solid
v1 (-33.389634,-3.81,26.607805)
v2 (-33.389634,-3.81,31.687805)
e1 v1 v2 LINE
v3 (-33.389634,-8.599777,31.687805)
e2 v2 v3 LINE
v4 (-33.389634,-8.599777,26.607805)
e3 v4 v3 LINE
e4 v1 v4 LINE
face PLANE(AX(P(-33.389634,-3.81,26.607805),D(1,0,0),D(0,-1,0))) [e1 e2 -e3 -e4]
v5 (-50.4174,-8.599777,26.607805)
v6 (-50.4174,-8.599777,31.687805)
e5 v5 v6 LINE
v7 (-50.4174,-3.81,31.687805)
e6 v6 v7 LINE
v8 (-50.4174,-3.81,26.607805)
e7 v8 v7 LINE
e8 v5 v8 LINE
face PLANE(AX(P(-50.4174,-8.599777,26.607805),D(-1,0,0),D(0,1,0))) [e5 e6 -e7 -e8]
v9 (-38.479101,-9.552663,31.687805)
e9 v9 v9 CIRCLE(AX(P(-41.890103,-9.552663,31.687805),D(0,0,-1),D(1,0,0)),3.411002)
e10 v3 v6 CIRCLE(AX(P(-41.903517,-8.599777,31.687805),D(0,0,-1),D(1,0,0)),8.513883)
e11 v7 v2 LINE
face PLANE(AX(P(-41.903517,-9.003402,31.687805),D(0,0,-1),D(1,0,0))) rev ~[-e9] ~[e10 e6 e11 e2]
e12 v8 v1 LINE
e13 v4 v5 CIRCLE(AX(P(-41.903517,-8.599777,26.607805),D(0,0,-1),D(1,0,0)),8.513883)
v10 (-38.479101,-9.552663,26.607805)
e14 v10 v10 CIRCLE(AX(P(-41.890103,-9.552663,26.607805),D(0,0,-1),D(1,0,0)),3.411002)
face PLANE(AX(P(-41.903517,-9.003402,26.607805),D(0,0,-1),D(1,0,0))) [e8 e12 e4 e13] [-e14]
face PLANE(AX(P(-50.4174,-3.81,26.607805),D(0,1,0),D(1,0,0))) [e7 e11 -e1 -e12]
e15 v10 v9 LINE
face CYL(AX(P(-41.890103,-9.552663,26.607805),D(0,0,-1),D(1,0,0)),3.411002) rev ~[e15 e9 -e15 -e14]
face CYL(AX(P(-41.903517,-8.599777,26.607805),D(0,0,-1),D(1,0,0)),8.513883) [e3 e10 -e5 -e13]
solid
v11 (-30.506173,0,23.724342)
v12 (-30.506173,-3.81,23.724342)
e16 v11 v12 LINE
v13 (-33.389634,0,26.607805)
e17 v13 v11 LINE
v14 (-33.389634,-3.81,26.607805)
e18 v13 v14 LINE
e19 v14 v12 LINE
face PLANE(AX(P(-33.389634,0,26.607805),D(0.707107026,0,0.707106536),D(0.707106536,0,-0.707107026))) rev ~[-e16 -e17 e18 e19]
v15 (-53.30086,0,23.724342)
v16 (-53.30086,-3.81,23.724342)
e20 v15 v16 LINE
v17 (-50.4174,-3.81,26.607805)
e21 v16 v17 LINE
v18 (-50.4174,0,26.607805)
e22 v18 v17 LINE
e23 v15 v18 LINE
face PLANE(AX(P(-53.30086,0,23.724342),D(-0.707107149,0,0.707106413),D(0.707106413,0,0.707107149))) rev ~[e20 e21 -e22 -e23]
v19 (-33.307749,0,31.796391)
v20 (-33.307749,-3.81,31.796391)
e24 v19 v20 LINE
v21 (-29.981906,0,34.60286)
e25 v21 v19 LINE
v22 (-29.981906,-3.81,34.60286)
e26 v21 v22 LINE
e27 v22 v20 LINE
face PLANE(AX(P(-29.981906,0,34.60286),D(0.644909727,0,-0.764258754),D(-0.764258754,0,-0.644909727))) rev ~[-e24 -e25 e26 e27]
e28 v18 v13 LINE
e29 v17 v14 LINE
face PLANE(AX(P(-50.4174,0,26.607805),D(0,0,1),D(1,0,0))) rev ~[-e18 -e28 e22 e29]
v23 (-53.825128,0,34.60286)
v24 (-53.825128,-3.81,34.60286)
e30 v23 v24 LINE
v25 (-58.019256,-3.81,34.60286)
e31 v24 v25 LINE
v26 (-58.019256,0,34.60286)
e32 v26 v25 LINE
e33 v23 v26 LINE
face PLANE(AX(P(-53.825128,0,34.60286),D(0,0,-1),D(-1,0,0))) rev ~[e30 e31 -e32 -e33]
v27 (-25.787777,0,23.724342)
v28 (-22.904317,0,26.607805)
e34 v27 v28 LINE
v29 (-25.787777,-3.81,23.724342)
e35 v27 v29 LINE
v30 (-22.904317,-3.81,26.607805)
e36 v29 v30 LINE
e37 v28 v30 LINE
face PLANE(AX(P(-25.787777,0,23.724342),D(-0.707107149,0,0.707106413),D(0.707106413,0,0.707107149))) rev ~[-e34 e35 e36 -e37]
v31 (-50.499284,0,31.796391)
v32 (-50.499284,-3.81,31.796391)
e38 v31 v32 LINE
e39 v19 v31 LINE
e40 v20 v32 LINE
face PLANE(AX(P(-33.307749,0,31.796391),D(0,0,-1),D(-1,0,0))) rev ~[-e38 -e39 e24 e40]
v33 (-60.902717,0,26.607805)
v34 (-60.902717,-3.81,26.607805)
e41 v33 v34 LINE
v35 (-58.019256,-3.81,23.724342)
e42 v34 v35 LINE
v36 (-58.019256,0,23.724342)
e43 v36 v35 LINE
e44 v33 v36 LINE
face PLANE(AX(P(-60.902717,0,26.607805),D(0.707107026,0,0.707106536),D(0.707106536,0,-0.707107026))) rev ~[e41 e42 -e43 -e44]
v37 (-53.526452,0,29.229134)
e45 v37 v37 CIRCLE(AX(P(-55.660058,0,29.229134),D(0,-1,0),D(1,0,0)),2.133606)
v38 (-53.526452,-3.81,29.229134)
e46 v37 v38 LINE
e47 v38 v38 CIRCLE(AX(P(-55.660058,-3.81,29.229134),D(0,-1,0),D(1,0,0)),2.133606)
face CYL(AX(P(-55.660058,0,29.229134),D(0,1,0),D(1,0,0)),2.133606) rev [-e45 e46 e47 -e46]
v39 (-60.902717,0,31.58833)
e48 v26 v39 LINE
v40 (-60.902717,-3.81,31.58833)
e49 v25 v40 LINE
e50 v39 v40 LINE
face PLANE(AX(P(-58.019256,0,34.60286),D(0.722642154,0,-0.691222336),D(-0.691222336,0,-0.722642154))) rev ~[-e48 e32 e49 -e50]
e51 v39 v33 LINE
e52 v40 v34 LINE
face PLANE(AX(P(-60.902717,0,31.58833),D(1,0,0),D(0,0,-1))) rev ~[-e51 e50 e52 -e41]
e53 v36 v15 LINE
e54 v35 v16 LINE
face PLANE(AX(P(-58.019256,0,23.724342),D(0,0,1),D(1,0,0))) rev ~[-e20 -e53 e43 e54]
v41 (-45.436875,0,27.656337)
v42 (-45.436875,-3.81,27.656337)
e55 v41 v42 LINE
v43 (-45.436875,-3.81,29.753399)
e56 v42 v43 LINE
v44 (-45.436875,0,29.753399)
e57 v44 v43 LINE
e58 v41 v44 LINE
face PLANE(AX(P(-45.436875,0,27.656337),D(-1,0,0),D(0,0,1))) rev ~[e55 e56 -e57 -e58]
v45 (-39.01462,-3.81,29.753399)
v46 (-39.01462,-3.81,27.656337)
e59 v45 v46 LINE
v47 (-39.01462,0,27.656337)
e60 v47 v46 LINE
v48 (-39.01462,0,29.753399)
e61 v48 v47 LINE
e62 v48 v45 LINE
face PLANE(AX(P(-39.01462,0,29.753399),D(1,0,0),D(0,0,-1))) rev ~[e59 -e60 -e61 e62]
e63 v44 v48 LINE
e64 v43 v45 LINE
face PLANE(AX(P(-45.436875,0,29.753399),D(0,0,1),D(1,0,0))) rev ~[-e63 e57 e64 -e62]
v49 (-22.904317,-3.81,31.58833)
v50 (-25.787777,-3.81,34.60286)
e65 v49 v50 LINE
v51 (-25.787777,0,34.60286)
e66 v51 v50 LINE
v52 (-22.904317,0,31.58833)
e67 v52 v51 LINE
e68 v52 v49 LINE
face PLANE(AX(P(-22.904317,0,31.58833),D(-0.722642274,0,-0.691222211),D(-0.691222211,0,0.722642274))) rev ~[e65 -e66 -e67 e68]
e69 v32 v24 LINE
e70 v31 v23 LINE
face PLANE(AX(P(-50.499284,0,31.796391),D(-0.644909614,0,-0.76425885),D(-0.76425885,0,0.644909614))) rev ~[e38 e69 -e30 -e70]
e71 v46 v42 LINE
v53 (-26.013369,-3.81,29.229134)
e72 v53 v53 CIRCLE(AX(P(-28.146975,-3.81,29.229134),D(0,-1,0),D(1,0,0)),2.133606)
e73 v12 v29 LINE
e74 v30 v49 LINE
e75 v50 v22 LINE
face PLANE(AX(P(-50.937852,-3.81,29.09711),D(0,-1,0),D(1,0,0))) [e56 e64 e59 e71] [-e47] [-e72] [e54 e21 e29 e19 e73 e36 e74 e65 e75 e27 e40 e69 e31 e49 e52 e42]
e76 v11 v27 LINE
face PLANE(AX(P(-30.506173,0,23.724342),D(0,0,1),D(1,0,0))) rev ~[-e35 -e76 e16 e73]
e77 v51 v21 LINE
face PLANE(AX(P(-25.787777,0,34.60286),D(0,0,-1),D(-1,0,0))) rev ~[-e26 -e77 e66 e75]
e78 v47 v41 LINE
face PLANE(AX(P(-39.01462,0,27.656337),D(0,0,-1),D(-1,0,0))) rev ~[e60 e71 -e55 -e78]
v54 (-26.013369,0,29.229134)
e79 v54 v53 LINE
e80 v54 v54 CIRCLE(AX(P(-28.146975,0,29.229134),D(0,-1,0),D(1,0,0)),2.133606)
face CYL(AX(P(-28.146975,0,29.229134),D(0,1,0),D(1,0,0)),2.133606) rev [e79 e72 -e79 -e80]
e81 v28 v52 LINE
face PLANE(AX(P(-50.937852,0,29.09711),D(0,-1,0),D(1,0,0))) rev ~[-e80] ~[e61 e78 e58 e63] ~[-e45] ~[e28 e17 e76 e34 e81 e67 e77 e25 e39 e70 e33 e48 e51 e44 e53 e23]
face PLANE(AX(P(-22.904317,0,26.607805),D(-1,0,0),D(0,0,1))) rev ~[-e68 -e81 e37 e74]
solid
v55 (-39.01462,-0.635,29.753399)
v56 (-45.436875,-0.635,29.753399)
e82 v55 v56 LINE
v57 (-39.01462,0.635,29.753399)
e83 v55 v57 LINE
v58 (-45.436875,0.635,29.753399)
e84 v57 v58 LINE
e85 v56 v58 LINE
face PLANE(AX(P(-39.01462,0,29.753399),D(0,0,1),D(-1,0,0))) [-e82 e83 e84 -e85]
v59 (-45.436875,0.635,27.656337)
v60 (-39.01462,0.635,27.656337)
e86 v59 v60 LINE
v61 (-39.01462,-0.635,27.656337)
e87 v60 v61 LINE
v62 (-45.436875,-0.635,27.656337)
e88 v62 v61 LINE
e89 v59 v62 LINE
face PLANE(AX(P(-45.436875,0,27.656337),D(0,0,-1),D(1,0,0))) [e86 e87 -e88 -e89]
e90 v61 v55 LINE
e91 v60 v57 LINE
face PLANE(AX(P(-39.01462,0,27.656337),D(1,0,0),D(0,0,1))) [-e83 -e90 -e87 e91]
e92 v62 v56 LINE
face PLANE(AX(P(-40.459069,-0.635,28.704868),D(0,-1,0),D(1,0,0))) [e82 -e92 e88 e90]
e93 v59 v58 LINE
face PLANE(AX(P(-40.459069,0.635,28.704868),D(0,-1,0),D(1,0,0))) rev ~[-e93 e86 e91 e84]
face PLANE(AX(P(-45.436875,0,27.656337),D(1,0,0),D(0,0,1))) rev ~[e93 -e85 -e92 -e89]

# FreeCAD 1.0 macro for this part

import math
import FreeCAD as App
import Part
import Sketcher
from FreeCAD import Vector
Q = App.Units.Quantity


def add_polygon(sketch, points):
    """Adds a closed chain of lines whose ends are joined by coincident constraints."""
    first, n = sketch.GeometryCount, len(points)
    for a, b in zip(points, points[1:] + points[:1]):
        sketch.addGeometry(Part.LineSegment(App.Vector(*a, 0), App.Vector(*b, 0)), False)
    for i in range(n):
        sketch.addConstraint(Sketcher.Constraint("Coincident", first + i, 2, first + (i + 1) % n, 1))

doc = App.newDocument("Part")
body = doc.addObject("PartDesign::Body", "Body")

# Sketch on XZ plane
sketch1 = body.newObject("Sketcher::SketchObject", "Sketch")
sketch1.AttachmentSupport = (doc.getObject("XZ_Plane"), [""])
sketch1.MapMode = "FlatFace"
add_polygon(sketch1, [(-50.5, 31.8), (-53.8, 34.6), (-58, 34.6), (-60.9, 31.6), (-60.9, 26.6), (-58, 23.7), (-53.3, 23.7), (-50.4, 26.6), (-33.4, 26.6), (-30.5, 23.7), (-25.8, 23.7), (-22.9, 26.6), (-22.9, 31.6), (-25.8, 34.6), (-30, 34.6), (-33.3, 31.8)])  # lines 0-15
add_polygon(sketch1, [(-45.4, 29.8), (-39, 29.8), (-39, 27.7), (-45.4, 27.7)])  # lines 16-19
sketch1.addGeometry(Part.Circle(Vector(-55.7, 29.2, 0), Vector(0, 0, 1), 2.1), False)  # 20
sketch1.addGeometry(Part.Circle(Vector(-28.1, 29.2, 0), Vector(0, 0, 1), 2.1), False)  # 21
sketch1.addConstraint([
    Sketcher.Constraint("Horizontal", 1),
    Sketcher.Constraint("Vertical", 3),
    Sketcher.Constraint("Horizontal", 5),
    Sketcher.Constraint("Horizontal", 7),
    Sketcher.Constraint("Horizontal", 9),
    Sketcher.Constraint("Vertical", 11),
    Sketcher.Constraint("Horizontal", 13),
    Sketcher.Constraint("Horizontal", 15),
    Sketcher.Constraint("Horizontal", 16),
    Sketcher.Constraint("Vertical", 17),
    Sketcher.Constraint("Horizontal", 18),
    Sketcher.Constraint("Vertical", 19),
    Sketcher.Constraint("Equal", 20, 21),
    Sketcher.Constraint("Perpendicular", 4, 6),
    Sketcher.Constraint("Perpendicular", 6, 8),
    Sketcher.Constraint("Perpendicular", 8, 10),
    Sketcher.Constraint("Horizontal", 20, 3, 21, 3),
    Sketcher.Constraint("Horizontal", 3, 2, 6, 2),
    Sketcher.Constraint("Horizontal", 5, 2, 8, 2),
    Sketcher.Constraint("Horizontal", 7, 2, 10, 2),
    Sketcher.Constraint("Horizontal", 2, 2, 11, 2),
    Sketcher.Constraint("Horizontal", 1, 2, 12, 2),
    Sketcher.Constraint("Vertical", 1, 2, 4, 2),
    Sketcher.Constraint("Vertical", 9, 2, 12, 2),
    Sketcher.Constraint("Equal", 5, 9),
    Sketcher.Constraint("Equal", 1, 13),
    Sketcher.Constraint("Equal", 4, 6),
    Sketcher.Constraint("Equal", 0, 14),
    Sketcher.Constraint("Diameter", 20, Q("4.267212 mm")),
    Sketcher.Constraint("DistanceX", 13, 2, 13, 1, Q("4.194129 mm")),
    Sketcher.Constraint("DistanceX", 6, 2, -1, 1, Q("50.4174 mm")),
    Sketcher.Constraint("DistanceY", -1, 1, 16, 2, Q("29.753399 mm")),
    Sketcher.Constraint("DistanceX", 21, 3, 9, 2, Q("2.359198 mm")),
    Sketcher.Constraint("Distance", 2, Q("4.171539 mm")),
    Sketcher.Constraint("Distance", 4, Q("4.077831 mm")),
    Sketcher.Constraint("DistanceX", 5, 1, 5, 2, Q("4.718396 mm")),
    Sketcher.Constraint("DistanceX", 7, 1, 7, 2, Q("17.027766 mm")),
    Sketcher.Constraint("DistanceX", 15, 2, 15, 1, Q("17.191535 mm")),
    Sketcher.Constraint("DistanceX", 16, 1, 16, 2, Q("6.422255 mm")),
    Sketcher.Constraint("DistanceY", 3, 2, 3, 1, Q("4.980525 mm")),
    Sketcher.Constraint("DistanceY", 17, 2, 17, 1, Q("2.097062 mm")),
    Sketcher.Constraint("DistanceY", -1, 1, 0, 2, Q("34.60286 mm")),
    Sketcher.Constraint("DistanceY", -1, 1, 14, 2, Q("31.796391 mm")),
    Sketcher.Constraint("DistanceX", 16, 2, -1, 1, Q("39.01462 mm")),
    Sketcher.Constraint("DistanceX", 20, 3, 0, 2, Q("1.83493 mm")),
    Sketcher.Constraint("DistanceY", 3, 2, 20, 3, Q("2.621329 mm")),
])
pad1 = body.newObject("PartDesign::Pad", "Pad")
pad1.Profile = sketch1
pad1.Length = Q("0.15 in")
body2 = doc.addObject("PartDesign::Body", "Body001")

# Sketch on XZ plane
sketch2 = body2.newObject("Sketcher::SketchObject", "Sketch001")
sketch2.AttachmentSupport = (doc.getObject("XZ_Plane001"), [""])
sketch2.MapMode = "FlatFace"
add_polygon(sketch2, [(-45.4, 29.8), (-45.4, 27.7), (-39, 27.7), (-39, 29.8)])  # lines 0-3
sketch2.addConstraint([
    Sketcher.Constraint("Vertical", 0),
    Sketcher.Constraint("Horizontal", 1),
    Sketcher.Constraint("Vertical", 2),
    Sketcher.Constraint("Horizontal", 3),
    Sketcher.Constraint("DistanceY", -1, 1, 2, 2, Q("29.753399 mm")),
    Sketcher.Constraint("DistanceX", 1, 1, 1, 2, Q("6.422255 mm")),
    Sketcher.Constraint("DistanceY", 0, 2, 0, 1, Q("2.097062 mm")),
    Sketcher.Constraint("DistanceX", 1, 2, -1, 1, Q("39.01462 mm")),
])
pad2 = body2.newObject("PartDesign::Pad", "Pad001")
pad2.Profile = sketch2
pad2.Length = Q("0.05 in")
pad2.Midplane = True
body3 = doc.addObject("PartDesign::Body", "Body002")

# Sketch on XY plane
sketch3 = body3.newObject("Sketcher::SketchObject", "Sketch002")
sketch3.AttachmentSupport = (doc.getObject("XY_Plane002"), [""])
sketch3.MapMode = "FlatFace"
sketch3.AttachmentOffset = App.Placement(Vector(0, 0, 26.607805), App.Rotation())
sketch3.addGeometry([
    Part.LineSegment(Vector(-50.4, -8.6, 0), Vector(-50.4, -3.8, 0)),  # 0
    Part.LineSegment(Vector(-50.4, -3.8, 0), Vector(-33.4, -3.8, 0)),  # 1
    Part.LineSegment(Vector(-33.4, -3.8, 0), Vector(-33.4, -8.6, 0)),  # 2
    Part.ArcOfCircle(Part.Circle(Vector(-41.9, -8.6, 0), Vector(0, 0, 1), 8.5), math.radians(180), math.radians(360)),  # 3
    Part.Circle(Vector(-41.9, -9.6, 0), Vector(0, 0, 1), 3.4),  # 4
], False)
sketch3.addConstraint([
    Sketcher.Constraint("Coincident", 0, 2, 1, 1),
    Sketcher.Constraint("Coincident", 1, 2, 2, 1),
    Sketcher.Constraint("Tangent", 2, 2, 3, 2),
    Sketcher.Constraint("Tangent", 3, 1, 0, 1),
    Sketcher.Constraint("Vertical", 0),
    Sketcher.Constraint("Horizontal", 1),
    Sketcher.Constraint("Vertical", 2),
    Sketcher.Constraint("DistanceY", 0, 2, -1, 1, Q("0.15 in")),
    Sketcher.Constraint("Diameter", 4, Q("6.822004 mm")),
    Sketcher.Constraint("Radius", 3, Q("8.513883 mm")),
    Sketcher.Constraint("DistanceX", 0, 2, -1, 1, Q("50.4174 mm")),
    Sketcher.Constraint("DistanceY", 0, 1, 0, 2, Q("4.789777 mm")),
    Sketcher.Constraint("DistanceX", 4, 3, 1, 2, Q("8.500469 mm")),
    Sketcher.Constraint("DistanceY", 4, 3, -1, 1, Q("9.552663 mm")),
])
pad3 = body3.newObject("PartDesign::Pad", "Pad002")
pad3.Profile = sketch3
pad3.Length = Q("0.2 in")

doc.recompute()
